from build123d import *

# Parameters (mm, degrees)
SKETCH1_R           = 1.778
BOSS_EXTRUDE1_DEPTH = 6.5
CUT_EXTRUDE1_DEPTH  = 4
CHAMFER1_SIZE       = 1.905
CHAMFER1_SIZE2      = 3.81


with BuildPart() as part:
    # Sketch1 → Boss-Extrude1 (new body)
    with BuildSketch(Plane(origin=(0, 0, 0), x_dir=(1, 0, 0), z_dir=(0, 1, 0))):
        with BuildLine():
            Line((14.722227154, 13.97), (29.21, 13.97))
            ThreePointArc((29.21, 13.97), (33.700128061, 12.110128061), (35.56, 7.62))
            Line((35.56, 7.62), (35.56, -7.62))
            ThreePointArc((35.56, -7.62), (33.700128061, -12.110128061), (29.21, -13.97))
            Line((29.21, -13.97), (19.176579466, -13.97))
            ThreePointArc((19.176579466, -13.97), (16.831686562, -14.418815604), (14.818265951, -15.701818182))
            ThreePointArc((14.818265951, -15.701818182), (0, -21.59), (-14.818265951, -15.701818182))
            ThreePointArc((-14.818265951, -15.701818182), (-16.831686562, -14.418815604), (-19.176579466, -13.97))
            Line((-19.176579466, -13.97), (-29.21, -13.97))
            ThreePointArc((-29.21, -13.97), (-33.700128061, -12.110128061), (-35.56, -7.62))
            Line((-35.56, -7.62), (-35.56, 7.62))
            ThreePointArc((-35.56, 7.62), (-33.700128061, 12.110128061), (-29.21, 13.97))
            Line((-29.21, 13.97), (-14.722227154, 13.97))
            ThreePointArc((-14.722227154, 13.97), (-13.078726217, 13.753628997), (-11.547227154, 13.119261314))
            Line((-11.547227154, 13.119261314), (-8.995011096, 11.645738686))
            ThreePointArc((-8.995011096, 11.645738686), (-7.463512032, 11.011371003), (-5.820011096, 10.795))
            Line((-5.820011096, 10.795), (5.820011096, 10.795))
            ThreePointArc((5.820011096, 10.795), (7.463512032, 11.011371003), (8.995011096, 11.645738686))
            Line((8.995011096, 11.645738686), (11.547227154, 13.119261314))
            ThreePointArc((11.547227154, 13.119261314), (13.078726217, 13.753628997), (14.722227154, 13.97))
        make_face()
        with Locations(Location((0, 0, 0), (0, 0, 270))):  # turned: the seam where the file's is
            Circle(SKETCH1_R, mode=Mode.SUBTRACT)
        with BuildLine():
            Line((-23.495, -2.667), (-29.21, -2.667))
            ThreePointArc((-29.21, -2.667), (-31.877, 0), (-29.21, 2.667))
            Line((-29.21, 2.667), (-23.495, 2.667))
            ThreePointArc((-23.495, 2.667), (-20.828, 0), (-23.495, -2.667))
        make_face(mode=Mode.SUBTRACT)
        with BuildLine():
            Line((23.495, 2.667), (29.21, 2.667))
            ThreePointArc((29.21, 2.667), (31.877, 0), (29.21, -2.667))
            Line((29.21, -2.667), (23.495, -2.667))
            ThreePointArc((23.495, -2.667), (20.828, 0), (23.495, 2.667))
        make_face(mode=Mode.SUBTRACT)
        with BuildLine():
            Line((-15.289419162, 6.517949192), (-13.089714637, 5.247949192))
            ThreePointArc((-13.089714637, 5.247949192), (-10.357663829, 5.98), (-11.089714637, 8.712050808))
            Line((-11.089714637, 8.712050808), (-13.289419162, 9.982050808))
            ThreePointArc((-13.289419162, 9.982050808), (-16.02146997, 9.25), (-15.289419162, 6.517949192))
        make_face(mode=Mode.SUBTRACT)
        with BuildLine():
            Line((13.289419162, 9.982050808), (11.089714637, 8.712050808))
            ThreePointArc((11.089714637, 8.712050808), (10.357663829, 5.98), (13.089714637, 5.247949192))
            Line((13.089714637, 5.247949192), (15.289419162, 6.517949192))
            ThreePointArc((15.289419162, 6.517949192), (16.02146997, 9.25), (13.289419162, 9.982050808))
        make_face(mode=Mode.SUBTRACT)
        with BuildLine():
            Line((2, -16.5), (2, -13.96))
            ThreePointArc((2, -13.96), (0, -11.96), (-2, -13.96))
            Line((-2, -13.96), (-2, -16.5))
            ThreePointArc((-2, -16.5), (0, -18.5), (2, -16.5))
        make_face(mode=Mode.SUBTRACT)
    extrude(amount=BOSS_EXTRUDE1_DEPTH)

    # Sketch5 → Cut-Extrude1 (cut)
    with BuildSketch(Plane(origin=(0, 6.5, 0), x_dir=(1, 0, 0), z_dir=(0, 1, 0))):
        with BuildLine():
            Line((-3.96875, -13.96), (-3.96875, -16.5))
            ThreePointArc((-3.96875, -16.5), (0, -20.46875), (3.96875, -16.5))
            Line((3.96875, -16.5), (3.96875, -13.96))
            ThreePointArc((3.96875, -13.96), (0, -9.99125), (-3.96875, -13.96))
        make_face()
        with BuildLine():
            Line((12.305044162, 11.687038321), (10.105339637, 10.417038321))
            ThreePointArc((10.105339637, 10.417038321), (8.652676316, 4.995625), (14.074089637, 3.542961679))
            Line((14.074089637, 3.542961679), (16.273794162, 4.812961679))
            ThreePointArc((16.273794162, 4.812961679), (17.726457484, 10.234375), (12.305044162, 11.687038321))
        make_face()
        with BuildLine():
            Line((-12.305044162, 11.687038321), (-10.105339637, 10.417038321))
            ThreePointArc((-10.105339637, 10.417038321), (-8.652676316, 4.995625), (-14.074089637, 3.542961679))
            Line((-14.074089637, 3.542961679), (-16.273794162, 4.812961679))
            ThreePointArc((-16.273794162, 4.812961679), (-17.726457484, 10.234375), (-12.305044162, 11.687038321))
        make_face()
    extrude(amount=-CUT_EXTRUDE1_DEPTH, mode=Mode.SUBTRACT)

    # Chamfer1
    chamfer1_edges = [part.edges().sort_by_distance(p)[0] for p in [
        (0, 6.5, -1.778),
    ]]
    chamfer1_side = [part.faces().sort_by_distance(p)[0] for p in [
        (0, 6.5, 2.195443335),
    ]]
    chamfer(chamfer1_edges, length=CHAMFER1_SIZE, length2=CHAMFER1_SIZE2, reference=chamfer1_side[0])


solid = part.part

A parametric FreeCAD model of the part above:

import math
import FreeCAD as App
import Part
import Sketcher
from FreeCAD import Vector
Q = App.Units.Quantity


def edges_at(feature, points):
    """Names of the edges that pass closest to the given points."""
    edges = feature.Shape.Edges
    near = lambda p: min(range(len(edges)), key=lambda i: edges[i].distToShape(Part.Vertex(*p))[0])
    return sorted({f"Edge{near(p) + 1}" for p in points})

doc = App.newDocument("Part")
body = doc.addObject("PartDesign::Body", "Body")

sketch1 = body.newObject("Sketcher::SketchObject", "Sketch")
sketch1.AttachmentSupport = (doc.getObject("XZ_Plane"), [""])
sketch1.MapMode = "FlatFace"
sketch1.addGeometry([
    Part.LineSegment(Vector(29.21, -13.97, 0), Vector(14.722227, -13.97, 0)),
    Part.ArcOfCircle(Part.Circle(Vector(14.722227, -7.62, 0), Vector(0, 0, 1), 6.35), math.radians(-120), math.radians(-90)),
    Part.LineSegment(Vector(11.547227, -13.119261, 0), Vector(8.995011, -11.645739, 0)),
    Part.ArcOfCircle(Part.Circle(Vector(5.820011, -17.145, 0), Vector(0, 0, 1), 6.35), math.radians(60), math.radians(90)),
    Part.LineSegment(Vector(5.820011, -10.795, 0), Vector(-5.820011, -10.795, 0)),
    Part.ArcOfCircle(Part.Circle(Vector(-5.820011, -17.145, 0), Vector(0, 0, 1), 6.35), math.radians(90), math.radians(120)),
    Part.LineSegment(Vector(-8.995011, -11.645739, 0), Vector(-11.547227, -13.119261, 0)),
    Part.ArcOfCircle(Part.Circle(Vector(-14.722227, -7.62, 0), Vector(0, 0, 1), 6.35), math.radians(-90), math.radians(-60)),
    Part.LineSegment(Vector(-14.722227, -13.97, 0), Vector(-29.21, -13.97, 0)),
    Part.ArcOfCircle(Part.Circle(Vector(-29.21, -7.62, 0), Vector(0, 0, 1), 6.35), math.radians(180), math.radians(270)),
    Part.LineSegment(Vector(-35.56, -7.62, 0), Vector(-35.56, 7.62, 0)),
    Part.ArcOfCircle(Part.Circle(Vector(-29.21, 7.62, 0), Vector(0, 0, 1), 6.35), math.radians(90), math.radians(180)),
    Part.LineSegment(Vector(-29.21, 13.97, 0), Vector(-19.176579, 13.97, 0)),
    Part.ArcOfCircle(Part.Circle(Vector(-19.176579, 20.32, 0), Vector(0, 0, 1), 6.35), math.radians(-90), math.radians(-46.658242)),
    Part.ArcOfCircle(Part.Circle(Vector(0, 0, 0), Vector(0, 0, 1), 21.59), math.radians(46.658242), math.radians(133.341758)),
    Part.ArcOfCircle(Part.Circle(Vector(19.176579, 20.32, 0), Vector(0, 0, 1), 6.35), math.radians(-133.341758), math.radians(-90)),
    Part.LineSegment(Vector(19.176579, 13.97, 0), Vector(29.21, 13.97, 0)),
    Part.ArcOfCircle(Part.Circle(Vector(29.21, 7.62, 0), Vector(0, 0, 1), 6.35), math.radians(0), math.radians(90)),
    Part.LineSegment(Vector(35.56, 7.62, 0), Vector(35.56, -7.62, 0)),
    Part.ArcOfCircle(Part.Circle(Vector(29.21, -7.62, 0), Vector(0, 0, 1), 6.35), math.radians(-90), math.radians(0)),
    Part.ArcOfCircle(Part.Circle(Vector(0, 16.5, 0), Vector(0, 0, 1), 2), math.radians(0), math.radians(180)),
    Part.LineSegment(Vector(-2, 16.5, 0), Vector(-2, 13.96, 0)),
    Part.ArcOfCircle(Part.Circle(Vector(0, 13.96, 0), Vector(0, 0, 1), 2), math.radians(180), math.radians(360)),
    Part.LineSegment(Vector(2, 13.96, 0), Vector(2, 16.5, 0)),
    Part.LineSegment(Vector(23.495, -2.667, 0), Vector(29.21, -2.667, 0)),
    Part.ArcOfCircle(Part.Circle(Vector(29.21, 0, 0), Vector(0, 0, 1), 2.667), math.radians(-90), math.radians(90)),
    Part.LineSegment(Vector(29.21, 2.667, 0), Vector(23.495, 2.667, 0)),
    Part.ArcOfCircle(Part.Circle(Vector(23.495, 0, 0), Vector(0, 0, 1), 2.667), math.radians(90), math.radians(270)),
    Part.ArcOfCircle(Part.Circle(Vector(14.289419, -8.25, 0), Vector(0, 0, 1), 2), math.radians(-120), math.radians(60)),
    Part.LineSegment(Vector(15.289419, -6.517949, 0), Vector(13.089715, -5.247949, 0)),
    Part.ArcOfCircle(Part.Circle(Vector(12.089715, -6.98, 0), Vector(0, 0, 1), 2), math.radians(60), math.radians(240)),
    Part.LineSegment(Vector(11.089715, -8.712051, 0), Vector(13.289419, -9.982051, 0)),
    Part.Circle(Vector(0, 0, 0), Vector(0, 0, 1), 1.778),
    Part.LineSegment(Vector(-23.495, 2.667, 0), Vector(-29.21, 2.667, 0)),
    Part.ArcOfCircle(Part.Circle(Vector(-29.21, 0, 0), Vector(0, 0, 1), 2.667), math.radians(90), math.radians(270)),
    Part.LineSegment(Vector(-29.21, -2.667, 0), Vector(-23.495, -2.667, 0)),
    Part.ArcOfCircle(Part.Circle(Vector(-23.495, 0, 0), Vector(0, 0, 1), 2.667), math.radians(-90), math.radians(90)),
    Part.ArcOfCircle(Part.Circle(Vector(-14.289419, -8.25, 0), Vector(0, 0, 1), 2), math.radians(120), math.radians(300)),
    Part.LineSegment(Vector(-13.289419, -9.982051, 0), Vector(-11.089715, -8.712051, 0)),
    Part.ArcOfCircle(Part.Circle(Vector(-12.089715, -6.98, 0), Vector(0, 0, 1), 2), math.radians(-60), math.radians(120)),
    Part.LineSegment(Vector(-13.089715, -5.247949, 0), Vector(-15.289419, -6.517949, 0)),
], False)
sketch1.addConstraint([
    Sketcher.Constraint("Tangent", 0, 2, 1, 2),
    Sketcher.Constraint("Tangent", 1, 1, 2, 1),
    Sketcher.Constraint("Tangent", 2, 2, 3, 1),
    Sketcher.Constraint("Tangent", 3, 2, 4, 1),
    Sketcher.Constraint("Tangent", 4, 2, 5, 1),
    Sketcher.Constraint("Tangent", 5, 2, 6, 1),
    Sketcher.Constraint("Tangent", 6, 2, 7, 2),
    Sketcher.Constraint("Tangent", 7, 1, 8, 1),
    Sketcher.Constraint("Tangent", 8, 2, 9, 2),
    Sketcher.Constraint("Tangent", 9, 1, 10, 1),
    Sketcher.Constraint("Tangent", 10, 2, 11, 2),
    Sketcher.Constraint("Tangent", 11, 1, 12, 1),
    Sketcher.Constraint("Tangent", 12, 2, 13, 1),
    Sketcher.Constraint("Tangent", 13, 2, 14, 2),
    Sketcher.Constraint("Tangent", 14, 1, 15, 1),
    Sketcher.Constraint("Tangent", 15, 2, 16, 1),
    Sketcher.Constraint("Tangent", 16, 2, 17, 2),
    Sketcher.Constraint("Tangent", 17, 1, 18, 1),
    Sketcher.Constraint("Tangent", 18, 2, 19, 2),
    Sketcher.Constraint("Tangent", 19, 1, 0, 1),
    Sketcher.Constraint("Tangent", 20, 2, 21, 1),
    Sketcher.Constraint("Tangent", 21, 2, 22, 1),
    Sketcher.Constraint("Tangent", 22, 2, 23, 1),
    Sketcher.Constraint("Tangent", 23, 2, 20, 1),
    Sketcher.Constraint("Tangent", 24, 2, 25, 1),
    Sketcher.Constraint("Tangent", 25, 2, 26, 1),
    Sketcher.Constraint("Tangent", 26, 2, 27, 1),
    Sketcher.Constraint("Tangent", 27, 2, 24, 1),
    Sketcher.Constraint("Tangent", 28, 2, 29, 1),
    Sketcher.Constraint("Tangent", 29, 2, 30, 1),
    Sketcher.Constraint("Tangent", 30, 2, 31, 1),
    Sketcher.Constraint("Tangent", 31, 2, 28, 1),
    Sketcher.Constraint("Tangent", 33, 2, 34, 1),
    Sketcher.Constraint("Tangent", 34, 2, 35, 1),
    Sketcher.Constraint("Tangent", 35, 2, 36, 1),
    Sketcher.Constraint("Tangent", 36, 2, 33, 1),
    Sketcher.Constraint("Tangent", 37, 2, 38, 1),
    Sketcher.Constraint("Tangent", 38, 2, 39, 1),
    Sketcher.Constraint("Tangent", 39, 2, 40, 1),
    Sketcher.Constraint("Tangent", 40, 2, 37, 1),
    Sketcher.Constraint("Horizontal", 0),
    Sketcher.Constraint("Horizontal", 4),
    Sketcher.Constraint("Horizontal", 8),
    Sketcher.Constraint("Vertical", 10),
    Sketcher.Constraint("Horizontal", 12),
    Sketcher.Constraint("Horizontal", 16),
    Sketcher.Constraint("Vertical", 18),
    Sketcher.Constraint("Vertical", 21),
    Sketcher.Constraint("Vertical", 23),
    Sketcher.Constraint("Horizontal", 24),
    Sketcher.Constraint("Horizontal", 26),
    Sketcher.Constraint("Horizontal", 33),
    Sketcher.Constraint("Horizontal", 35),
    Sketcher.Constraint("Coincident", 14, 3, -1, 1),
    Sketcher.Constraint("Coincident", 32, 3, -1, 1),
    Sketcher.Constraint("Equal", 1, 3),
    Sketcher.Constraint("Equal", 3, 5),
    Sketcher.Constraint("Equal", 5, 7),
    Sketcher.Constraint("Equal", 7, 9),
    Sketcher.Constraint("Equal", 9, 11),
    Sketcher.Constraint("Equal", 11, 13),
    Sketcher.Constraint("Equal", 13, 15),
    Sketcher.Constraint("Equal", 15, 17),
    Sketcher.Constraint("Equal", 17, 19),
    Sketcher.Constraint("Equal", 22, 28),
    Sketcher.Constraint("Equal", 28, 30),
    Sketcher.Constraint("Equal", 27, 34),
    Sketcher.Constraint("Equal", 30, 37),
    Sketcher.Constraint("Equal", 37, 39),
    Sketcher.Constraint("Symmetric", 9, 3, 17, 3, -1, 1),
    Sketcher.Constraint("Symmetric", 25, 3, 34, 3, -1, 1),
    Sketcher.Constraint("Symmetric", 1, 3, 7, 3, -2),
    Sketcher.Constraint("Symmetric", 27, 3, 36, 3, -2),
    Sketcher.Constraint("Symmetric", 28, 3, 37, 3, -2),
    Sketcher.Constraint("Symmetric", 30, 3, 39, 3, -2),
    Sketcher.Constraint("PointOnObject", 20, 3, -2),
    Sketcher.Constraint("Parallel", 2, 29),
    Sketcher.Constraint("Parallel", 6, 38),
    Sketcher.Constraint("Horizontal", 13, 3, 15, 3),
    Sketcher.Constraint("Vertical", 19, 3, 25, 3),
    Sketcher.Constraint("Diameter", 32, Q("0.14 in")),
    Sketcher.Constraint("Radius", 1, Q("0.25 in")),
    Sketcher.Constraint("Radius", 14, Q("0.85 in")),
    Sketcher.Constraint("DistanceY", 10, 1, 10, 2, Q("0.6 in")),
    Sketcher.Constraint("DistanceY", 21, 2, 21, 1, Q("0.1 in")),
    Sketcher.Constraint("Angle", 2, Q("150 deg")),
    Sketcher.Constraint("Radius", 25, Q("0.105 in")),
    Sketcher.Constraint("Distance", 29, Q("0.1 in")),
    Sketcher.Constraint("DistanceX", 9, 1, -1, 1, Q("1.4 in")),
    Sketcher.Constraint("DistanceX", 24, 1, 24, 2, Q("0.225 in")),
    Sketcher.Constraint("Radius", 20, Q("2 mm")),
    Sketcher.Constraint("DistanceY", 3, 3, -1, 1, Q("0.675 in")),
    Sketcher.Constraint("DistanceY", -1, 1, 20, 3, Q("16.5 mm")),
    Sketcher.Constraint("DistanceY", 28, 3, -1, 1, Q("8.25 mm")),
    Sketcher.Constraint("DistanceX", 0, 2, 0, 1, Q("14.487773 mm")),
    Sketcher.Constraint("DistanceX", -1, 1, 28, 3, Q("14.289419 mm")),
])
pad1 = body.newObject("PartDesign::Pad", "Pad")
pad1.Profile = sketch1
pad1.Length = 6.5
pad1.Reversed = True

sketch2 = body.newObject("Sketcher::SketchObject", "Sketch001")
sketch2.AttachmentSupport = (doc.getObject("XZ_Plane"), [""])
sketch2.MapMode = "FlatFace"
sketch2.AttachmentOffset = App.Placement(Vector(0, 0, -6.5), App.Rotation())
sketch2.addGeometry([
    Part.LineSegment(Vector(-3.96875, 13.96, 0), Vector(-3.96875, 16.5, 0)),
    Part.ArcOfCircle(Part.Circle(Vector(0, 16.5, 0), Vector(0, 0, 1), 3.96875), math.radians(0), math.radians(180)),
    Part.LineSegment(Vector(3.96875, 16.5, 0), Vector(3.96875, 13.96, 0)),
    Part.ArcOfCircle(Part.Circle(Vector(0, 13.96, 0), Vector(0, 0, 1), 3.96875), math.radians(180), math.radians(360)),
    Part.LineSegment(Vector(12.305044, -11.687038, 0), Vector(10.10534, -10.417038, 0)),
    Part.ArcOfCircle(Part.Circle(Vector(12.089715, -6.98, 0), Vector(0, 0, 1), 3.96875), math.radians(60), math.radians(240)),
    Part.LineSegment(Vector(14.07409, -3.542962, 0), Vector(16.273794, -4.812962, 0)),
    Part.ArcOfCircle(Part.Circle(Vector(14.289419, -8.25, 0), Vector(0, 0, 1), 3.96875), math.radians(-120), math.radians(60)),
    Part.LineSegment(Vector(-10.10534, -10.417038, 0), Vector(-12.305044, -11.687038, 0)),
    Part.ArcOfCircle(Part.Circle(Vector(-14.289419, -8.25, 0), Vector(0, 0, 1), 3.96875), math.radians(120), math.radians(300)),
    Part.LineSegment(Vector(-16.273794, -4.812962, 0), Vector(-14.07409, -3.542962, 0)),
    Part.ArcOfCircle(Part.Circle(Vector(-12.089715, -6.98, 0), Vector(0, 0, 1), 3.96875), math.radians(-60), math.radians(120)),
], False)
sketch2.addConstraint([
    Sketcher.Constraint("Tangent", 0, 2, 1, 2),
    Sketcher.Constraint("Tangent", 1, 1, 2, 1),
    Sketcher.Constraint("Tangent", 2, 2, 3, 2),
    Sketcher.Constraint("Tangent", 3, 1, 0, 1),
    Sketcher.Constraint("Tangent", 4, 2, 5, 2),
    Sketcher.Constraint("Tangent", 5, 1, 6, 1),
    Sketcher.Constraint("Tangent", 6, 2, 7, 2),
    Sketcher.Constraint("Tangent", 7, 1, 4, 1),
    Sketcher.Constraint("Tangent", 8, 2, 9, 2),
    Sketcher.Constraint("Tangent", 9, 1, 10, 1),
    Sketcher.Constraint("Tangent", 10, 2, 11, 2),
    Sketcher.Constraint("Tangent", 11, 1, 8, 1),
    Sketcher.Constraint("Vertical", 0),
    Sketcher.Constraint("Vertical", 2),
    Sketcher.Constraint("Equal", 3, 5),
    Sketcher.Constraint("Equal", 5, 7),
    Sketcher.Constraint("Equal", 7, 9),
    Sketcher.Constraint("Equal", 9, 11),
    Sketcher.Constraint("Symmetric", 7, 3, 9, 3, -2),
    Sketcher.Constraint("Symmetric", 5, 3, 11, 3, -2),
    Sketcher.Constraint("PointOnObject", 1, 3, -2),
    Sketcher.Constraint("DistanceY", 0, 1, 0, 2, Q("0.1 in")),
    Sketcher.Constraint("Angle", 4, Q("150 deg")),
    Sketcher.Constraint("Radius", 1, Q("0.15625 in")),
    Sketcher.Constraint("Distance", 4, Q("0.1 in")),
    Sketcher.Constraint("DistanceY", -1, 1, 1, 3, Q("16.5 mm")),
    Sketcher.Constraint("DistanceY", 5, 3, -1, 1, Q("6.98 mm")),
    Sketcher.Constraint("DistanceX", -1, 1, 7, 3, Q("14.289419 mm")),
])
pocket1 = body.newObject("PartDesign::Pocket", "Pocket")
pocket1.Profile = sketch2
pocket1.Length = 4
pocket1.Reversed = True
doc.recompute()

chamfer = body.newObject("PartDesign::Chamfer", "Chamfer")
chamfer.Base = (pocket1, edges_at(pocket1, [(0, 6.5, -1.778)]))
chamfer.ChamferType = "Two distances"
chamfer.Size = Q("0.075 in")
chamfer.Size2 = Q("0.15 in")

doc.recompute()
